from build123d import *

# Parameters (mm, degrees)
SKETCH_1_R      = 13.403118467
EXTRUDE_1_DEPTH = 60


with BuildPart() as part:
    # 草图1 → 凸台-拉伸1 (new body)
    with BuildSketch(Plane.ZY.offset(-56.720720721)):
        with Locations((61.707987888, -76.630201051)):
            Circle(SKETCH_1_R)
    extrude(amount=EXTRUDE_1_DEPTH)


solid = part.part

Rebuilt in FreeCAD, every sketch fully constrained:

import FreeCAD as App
import Part
import Sketcher

V = App.Vector

doc = App.newDocument("Part")
body = doc.addObject("PartDesign::Body", "Body")

# Sketch on YZ plane
sketch1 = body.newObject("Sketcher::SketchObject", "Sketch")
sketch1.AttachmentSupport = (doc.getObject("YZ_Plane"), [""])
sketch1.MapMode = "FlatFace"
sketch1.AttachmentOffset = App.Placement(V(0, 0, 56.720721), App.Rotation())
sketch1.addGeometry(Part.Circle(V(-76.630201, 61.707988, 0), V(0, 0, 1), 13.403118), False)
sketch1.addConstraint([
    Sketcher.Constraint("Diameter", 0, 26.806237),
    Sketcher.Constraint("DistanceX", 0, 3, -1, 1, 76.630201),
    Sketcher.Constraint("DistanceY", -1, 1, 0, 3, 61.707988),
])
pad1 = body.newObject("PartDesign::Pad", "Pad")
pad1.Profile = sketch1
pad1.Length = 60
pad1.Reversed = True

doc.recompute()
